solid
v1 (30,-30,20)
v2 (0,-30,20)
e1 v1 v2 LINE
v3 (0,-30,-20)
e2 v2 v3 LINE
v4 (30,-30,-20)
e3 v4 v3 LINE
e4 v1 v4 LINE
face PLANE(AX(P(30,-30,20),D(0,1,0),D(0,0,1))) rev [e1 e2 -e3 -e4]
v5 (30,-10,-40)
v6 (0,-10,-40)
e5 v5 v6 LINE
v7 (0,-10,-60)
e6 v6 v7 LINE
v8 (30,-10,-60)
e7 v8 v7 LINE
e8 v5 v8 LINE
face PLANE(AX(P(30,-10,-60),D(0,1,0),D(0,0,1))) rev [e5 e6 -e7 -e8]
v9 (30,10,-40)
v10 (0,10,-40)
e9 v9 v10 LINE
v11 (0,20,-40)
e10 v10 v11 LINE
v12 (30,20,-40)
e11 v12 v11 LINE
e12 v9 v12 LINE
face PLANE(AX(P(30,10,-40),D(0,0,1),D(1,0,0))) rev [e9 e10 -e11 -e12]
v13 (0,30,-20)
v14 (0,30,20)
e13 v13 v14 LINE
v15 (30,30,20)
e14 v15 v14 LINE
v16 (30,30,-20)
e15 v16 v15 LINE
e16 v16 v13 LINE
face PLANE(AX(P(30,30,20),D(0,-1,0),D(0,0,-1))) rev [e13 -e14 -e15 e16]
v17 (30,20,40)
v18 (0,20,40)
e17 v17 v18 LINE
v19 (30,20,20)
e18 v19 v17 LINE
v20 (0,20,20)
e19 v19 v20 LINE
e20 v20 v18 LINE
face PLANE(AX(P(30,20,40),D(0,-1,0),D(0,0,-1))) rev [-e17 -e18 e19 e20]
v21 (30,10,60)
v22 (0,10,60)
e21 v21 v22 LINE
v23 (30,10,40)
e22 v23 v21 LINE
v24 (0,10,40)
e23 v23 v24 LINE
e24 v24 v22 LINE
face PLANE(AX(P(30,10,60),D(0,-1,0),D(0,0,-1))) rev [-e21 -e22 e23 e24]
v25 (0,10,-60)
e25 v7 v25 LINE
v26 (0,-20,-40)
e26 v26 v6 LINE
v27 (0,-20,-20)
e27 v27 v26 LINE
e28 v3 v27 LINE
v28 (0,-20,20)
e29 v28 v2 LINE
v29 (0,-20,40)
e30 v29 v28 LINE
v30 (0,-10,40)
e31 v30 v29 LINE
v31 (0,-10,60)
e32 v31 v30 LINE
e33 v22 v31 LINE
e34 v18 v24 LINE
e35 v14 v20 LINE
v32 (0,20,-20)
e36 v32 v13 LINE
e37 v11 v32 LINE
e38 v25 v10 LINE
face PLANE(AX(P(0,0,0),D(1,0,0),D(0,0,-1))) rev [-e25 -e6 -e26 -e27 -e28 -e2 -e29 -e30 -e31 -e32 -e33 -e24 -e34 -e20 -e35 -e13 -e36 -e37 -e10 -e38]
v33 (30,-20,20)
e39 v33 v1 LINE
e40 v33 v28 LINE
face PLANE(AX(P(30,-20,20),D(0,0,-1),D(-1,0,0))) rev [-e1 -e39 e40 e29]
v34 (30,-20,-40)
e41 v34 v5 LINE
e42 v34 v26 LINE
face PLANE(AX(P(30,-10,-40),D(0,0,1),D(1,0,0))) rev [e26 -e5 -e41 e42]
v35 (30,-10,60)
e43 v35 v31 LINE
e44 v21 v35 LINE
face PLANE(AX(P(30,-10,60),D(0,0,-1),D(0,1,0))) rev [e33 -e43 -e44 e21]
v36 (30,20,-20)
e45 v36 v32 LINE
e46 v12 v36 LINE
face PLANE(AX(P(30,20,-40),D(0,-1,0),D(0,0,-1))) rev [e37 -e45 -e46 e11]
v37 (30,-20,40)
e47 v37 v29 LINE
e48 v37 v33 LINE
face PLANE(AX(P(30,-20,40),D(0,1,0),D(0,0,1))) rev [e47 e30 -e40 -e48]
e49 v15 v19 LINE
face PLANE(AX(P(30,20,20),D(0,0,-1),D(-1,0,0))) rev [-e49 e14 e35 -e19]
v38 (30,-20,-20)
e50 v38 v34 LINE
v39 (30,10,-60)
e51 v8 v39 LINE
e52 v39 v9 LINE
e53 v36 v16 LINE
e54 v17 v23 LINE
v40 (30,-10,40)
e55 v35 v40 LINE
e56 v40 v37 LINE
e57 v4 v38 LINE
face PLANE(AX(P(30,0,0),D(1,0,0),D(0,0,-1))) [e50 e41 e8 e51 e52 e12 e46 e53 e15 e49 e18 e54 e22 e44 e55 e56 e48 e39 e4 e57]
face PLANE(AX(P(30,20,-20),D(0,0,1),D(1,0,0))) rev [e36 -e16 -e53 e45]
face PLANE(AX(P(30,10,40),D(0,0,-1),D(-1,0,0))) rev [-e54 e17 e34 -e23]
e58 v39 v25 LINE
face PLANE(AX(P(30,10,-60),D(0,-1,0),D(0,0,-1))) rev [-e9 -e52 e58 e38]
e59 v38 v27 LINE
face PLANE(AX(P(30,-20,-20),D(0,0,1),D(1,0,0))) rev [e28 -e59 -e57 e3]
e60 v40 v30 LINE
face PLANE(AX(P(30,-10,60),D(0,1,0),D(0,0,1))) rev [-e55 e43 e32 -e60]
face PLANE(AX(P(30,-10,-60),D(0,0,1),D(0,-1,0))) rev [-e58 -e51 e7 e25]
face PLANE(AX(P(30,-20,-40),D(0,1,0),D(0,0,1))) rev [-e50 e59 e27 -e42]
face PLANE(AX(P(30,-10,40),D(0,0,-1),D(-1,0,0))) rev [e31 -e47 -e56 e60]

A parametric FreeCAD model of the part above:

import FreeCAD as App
import Part
import Sketcher
from FreeCAD import Vector

doc = App.newDocument("Part")
params = doc.addObject("Spreadsheet::Sheet", "Params")
for row, (alias, value) in enumerate([
    ("sketch1_width", "20 mm"),
    ("sketch1_width2", "10 mm"),
    ("sketch1_height", "40 mm"),
    ("pad1_length", "30 mm"),
], start=1):
    params.set(f"A{row}", alias)
    params.set(f"B{row}", "=" + value)
    params.setAlias(f"B{row}", alias)

body = doc.addObject("PartDesign::Body", "Body")

# Sketch on YZ plane
sketch1 = body.newObject("Sketcher::SketchObject", "Sketch")
sketch1.AttachmentSupport = (doc.getObject("YZ_Plane"), [""])
sketch1.MapMode = "FlatFace"
sketch1.addGeometry([
    Part.LineSegment(Vector(10, 60, 0), Vector(-10, 60, 0)),  # 0
    Part.LineSegment(Vector(-10, 60, 0), Vector(-10, 40, 0)),  # 1
    Part.LineSegment(Vector(-10, 40, 0), Vector(-20, 40, 0)),  # 2
    Part.LineSegment(Vector(-20, 40, 0), Vector(-20, 20, 0)),  # 3
    Part.LineSegment(Vector(-20, 20, 0), Vector(-30, 20, 0)),  # 4
    Part.LineSegment(Vector(-30, 20, 0), Vector(-30, -20, 0)),  # 5
    Part.LineSegment(Vector(-30, -20, 0), Vector(-20, -20, 0)),  # 6
    Part.LineSegment(Vector(-20, -20, 0), Vector(-20, -40, 0)),  # 7
    Part.LineSegment(Vector(-20, -40, 0), Vector(-10, -40, 0)),  # 8
    Part.LineSegment(Vector(-10, -40, 0), Vector(-10, -60, 0)),  # 9
    Part.LineSegment(Vector(-10, -60, 0), Vector(10, -60, 0)),  # 10
    Part.LineSegment(Vector(10, -60, 0), Vector(10, -40, 0)),  # 11
    Part.LineSegment(Vector(10, -40, 0), Vector(20, -40, 0)),  # 12
    Part.LineSegment(Vector(20, -40, 0), Vector(20, -20, 0)),  # 13
    Part.LineSegment(Vector(20, -20, 0), Vector(30, -20, 0)),  # 14
    Part.LineSegment(Vector(30, -20, 0), Vector(30, 20, 0)),  # 15
    Part.LineSegment(Vector(30, 20, 0), Vector(20, 20, 0)),  # 16
    Part.LineSegment(Vector(20, 20, 0), Vector(20, 40, 0)),  # 17
    Part.LineSegment(Vector(20, 40, 0), Vector(10, 40, 0)),  # 18
    Part.LineSegment(Vector(10, 40, 0), Vector(10, 60, 0)),  # 19
], False)
sketch1.addConstraint([
    Sketcher.Constraint("Coincident", 0, 2, 1, 1),
    Sketcher.Constraint("Coincident", 1, 2, 2, 1),
    Sketcher.Constraint("Coincident", 2, 2, 3, 1),
    Sketcher.Constraint("Coincident", 3, 2, 4, 1),
    Sketcher.Constraint("Coincident", 4, 2, 5, 1),
    Sketcher.Constraint("Coincident", 5, 2, 6, 1),
    Sketcher.Constraint("Coincident", 6, 2, 7, 1),
    Sketcher.Constraint("Coincident", 7, 2, 8, 1),
    Sketcher.Constraint("Coincident", 8, 2, 9, 1),
    Sketcher.Constraint("Coincident", 9, 2, 10, 1),
    Sketcher.Constraint("Coincident", 10, 2, 11, 1),
    Sketcher.Constraint("Coincident", 11, 2, 12, 1),
    Sketcher.Constraint("Coincident", 12, 2, 13, 1),
    Sketcher.Constraint("Coincident", 13, 2, 14, 1),
    Sketcher.Constraint("Coincident", 14, 2, 15, 1),
    Sketcher.Constraint("Coincident", 15, 2, 16, 1),
    Sketcher.Constraint("Coincident", 16, 2, 17, 1),
    Sketcher.Constraint("Coincident", 17, 2, 18, 1),
    Sketcher.Constraint("Coincident", 18, 2, 19, 1),
    Sketcher.Constraint("Coincident", 19, 2, 0, 1),
    Sketcher.Constraint("Horizontal", 0),
    Sketcher.Constraint("Vertical", 1),
    Sketcher.Constraint("Horizontal", 2),
    Sketcher.Constraint("Vertical", 3),
    Sketcher.Constraint("Horizontal", 4),
    Sketcher.Constraint("Vertical", 5),
    Sketcher.Constraint("Horizontal", 6),
    Sketcher.Constraint("Vertical", 7),
    Sketcher.Constraint("Horizontal", 8),
    Sketcher.Constraint("Vertical", 9),
    Sketcher.Constraint("Horizontal", 10),
    Sketcher.Constraint("Vertical", 11),
    Sketcher.Constraint("Horizontal", 12),
    Sketcher.Constraint("Vertical", 13),
    Sketcher.Constraint("Horizontal", 14),
    Sketcher.Constraint("Vertical", 15),
    Sketcher.Constraint("Horizontal", 16),
    Sketcher.Constraint("Vertical", 17),
    Sketcher.Constraint("Horizontal", 18),
    Sketcher.Constraint("Vertical", 19),
    Sketcher.Constraint("Symmetric", 0, 2, 10, 2, -1, 1),
    Sketcher.Constraint("Symmetric", 2, 2, 12, 2, -1, 1),
    Sketcher.Constraint("Symmetric", 4, 2, 14, 2, -1, 1),
    Sketcher.Constraint("Symmetric", 6, 2, 16, 2, -1, 1),
    Sketcher.Constraint("Symmetric", 8, 2, 18, 2, -1, 1),
    Sketcher.Constraint("Symmetric", 8, 2, 11, 2, -2),
    Sketcher.Constraint("Symmetric", 6, 2, 13, 2, -2),
    Sketcher.Constraint("Equal", 2, 4),
    Sketcher.Constraint("Equal", 10, 1),
    Sketcher.Constraint("Equal", 1, 3),
    Sketcher.Constraint("DistanceX", 0, 2, 0, 1, 20.0),
    Sketcher.Constraint("DistanceX", 2, 2, 2, 1, 10.0),
    Sketcher.Constraint("DistanceY", 5, 2, 5, 1, 40.0),
])
sketch1.setExpression("Constraints[50]", "Params.sketch1_width")
sketch1.setExpression("Constraints[51]", "Params.sketch1_width2")
sketch1.setExpression("Constraints[52]", "Params.sketch1_height")
pad1 = body.newObject("PartDesign::Pad", "Pad")
pad1.Profile = sketch1
pad1.setExpression("Length", "Params.pad1_length")

doc.recompute()
